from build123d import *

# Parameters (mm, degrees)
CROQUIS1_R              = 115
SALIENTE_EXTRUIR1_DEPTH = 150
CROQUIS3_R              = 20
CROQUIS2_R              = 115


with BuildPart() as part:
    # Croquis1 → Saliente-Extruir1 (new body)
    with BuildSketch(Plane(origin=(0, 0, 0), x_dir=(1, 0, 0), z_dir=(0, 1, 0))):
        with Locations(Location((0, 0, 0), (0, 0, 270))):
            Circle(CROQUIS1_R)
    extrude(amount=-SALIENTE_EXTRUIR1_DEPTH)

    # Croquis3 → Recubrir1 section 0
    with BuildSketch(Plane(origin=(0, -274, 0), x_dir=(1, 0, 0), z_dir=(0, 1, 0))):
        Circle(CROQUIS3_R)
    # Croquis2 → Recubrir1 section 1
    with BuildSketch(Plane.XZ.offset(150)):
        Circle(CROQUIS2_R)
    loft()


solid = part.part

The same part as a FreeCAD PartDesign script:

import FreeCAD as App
import Part
import Sketcher

doc = App.newDocument("Part")
body = doc.addObject("PartDesign::Body", "Body")

sketch1 = body.newObject("Sketcher::SketchObject", "Sketch")
sketch1.AttachmentSupport = (doc.getObject("XZ_Plane"), [""])
sketch1.MapMode = "FlatFace"
sketch1.addGeometry(Part.Circle(App.Vector(0, 0, 0), App.Vector(0, 0, 1), 115), False)
sketch1.addConstraint([
    Sketcher.Constraint("Coincident", 0, 3, -1, 1),
    Sketcher.Constraint("Diameter", 0, 230.0),
])
pad1 = body.newObject("PartDesign::Pad", "Pad")
pad1.Profile = sketch1
pad1.Length = 150

sketch2 = body.newObject("Sketcher::SketchObject", "Sketch001")
sketch2.AttachmentSupport = (doc.getObject("XZ_Plane"), [""])
sketch2.MapMode = "FlatFace"
sketch2.AttachmentOffset = App.Placement(App.Vector(0, 0, 274), App.Rotation())
sketch2.addGeometry(Part.Circle(App.Vector(0, 0, 0), App.Vector(0, 0, 1), 20), False)
sketch2.addConstraint([
    Sketcher.Constraint("Coincident", 0, 3, -1, 1),
    Sketcher.Constraint("Diameter", 0, 40.0),
])

sketch3 = body.newObject("Sketcher::SketchObject", "Sketch002")
sketch3.AttachmentSupport = (doc.getObject("XZ_Plane"), [""])
sketch3.MapMode = "FlatFace"
sketch3.AttachmentOffset = App.Placement(App.Vector(0, 0, 150), App.Rotation())
sketch3.addGeometry(Part.Circle(App.Vector(0, 0, 0), App.Vector(0, 0, 1), 115), False)
sketch3.addConstraint([
    Sketcher.Constraint("Coincident", 0, 3, -1, 1),
    Sketcher.Constraint("Diameter", 0, 230.0),
])

additiveloft = body.newObject("PartDesign::AdditiveLoft", "AdditiveLoft")
additiveloft.Profile = sketch2
additiveloft.Sections = [sketch3]

doc.recompute()
